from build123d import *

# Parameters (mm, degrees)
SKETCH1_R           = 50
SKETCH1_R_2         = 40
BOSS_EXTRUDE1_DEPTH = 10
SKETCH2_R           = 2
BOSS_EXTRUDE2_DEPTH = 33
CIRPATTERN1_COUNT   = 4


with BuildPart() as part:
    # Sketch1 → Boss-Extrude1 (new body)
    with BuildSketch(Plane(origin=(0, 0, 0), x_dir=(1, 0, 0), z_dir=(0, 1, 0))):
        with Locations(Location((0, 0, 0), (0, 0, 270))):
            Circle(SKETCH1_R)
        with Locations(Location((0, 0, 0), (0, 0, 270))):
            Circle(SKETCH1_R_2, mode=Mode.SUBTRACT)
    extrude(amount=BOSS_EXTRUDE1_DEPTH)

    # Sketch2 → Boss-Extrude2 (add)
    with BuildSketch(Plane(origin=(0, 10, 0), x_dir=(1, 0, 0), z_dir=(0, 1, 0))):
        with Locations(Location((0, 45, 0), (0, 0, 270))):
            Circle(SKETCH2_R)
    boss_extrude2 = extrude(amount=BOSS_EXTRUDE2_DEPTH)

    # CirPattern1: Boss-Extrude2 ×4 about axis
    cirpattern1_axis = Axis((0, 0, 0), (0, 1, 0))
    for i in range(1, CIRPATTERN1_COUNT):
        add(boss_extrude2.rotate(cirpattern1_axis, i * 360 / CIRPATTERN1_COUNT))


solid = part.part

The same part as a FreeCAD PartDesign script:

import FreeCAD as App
import Part
import Sketcher
from FreeCAD import Vector

doc = App.newDocument("Part")
body = doc.addObject("PartDesign::Body", "Body")

# Sketch on XZ plane
sketch1 = doc.addObject("Sketcher::SketchObject", "Sketch")
body.addObject(sketch1)
sketch1.AttachmentSupport = (doc.XZ_Plane, [""])
sketch1.MapMode = "FlatFace"
sketch1.addGeometry(Part.Circle(Vector(0, 0, 0), Vector(0, 0, 1), 50), False)
sketch1.addGeometry(Part.Circle(Vector(0, 0, 0), Vector(0, 0, 1), 40), False)
sketch1.addConstraint(Sketcher.Constraint("Coincident", 0, 3, -1, 1))
sketch1.addConstraint(Sketcher.Constraint("Coincident", 1, 3, -1, 1))
sketch1.addConstraint(Sketcher.Constraint("Diameter", 0, 100.0))
sketch1.addConstraint(Sketcher.Constraint("Diameter", 1, 80.0))
pad1 = doc.addObject("PartDesign::Pad", "Pad")
body.addObject(pad1)
pad1.Profile = sketch1
pad1.Length = 10
pad1.Reversed = True

# Sketch on XZ plane
sketch2 = doc.addObject("Sketcher::SketchObject", "Sketch001")
body.addObject(sketch2)
sketch2.AttachmentSupport = (doc.XZ_Plane, [""])
sketch2.MapMode = "FlatFace"
sketch2.AttachmentOffset = App.Placement(Vector(0, 0, -10), App.Rotation())
sketch2.addGeometry(Part.Circle(Vector(0, -45, 0), Vector(0, 0, 1), 2), False)
sketch2.addConstraint(Sketcher.Constraint("PointOnObject", 0, 3, -2))
sketch2.addConstraint(Sketcher.Constraint("Diameter", 0, 4.0))
sketch2.addConstraint(Sketcher.Constraint("DistanceY", 0, 3, -1, 1, 45.0))
pad2 = doc.addObject("PartDesign::Pad", "Pad001")
body.addObject(pad2)
pad2.Profile = sketch2
pad2.Length = 33
pad2.Reversed = True
doc.recompute()

polarpattern = doc.addObject("PartDesign::PolarPattern", "PolarPattern")
body.addObject(polarpattern)
polarpattern.Originals = [pad2]
polarpattern.Axis = (doc.Y_Axis, [""])
polarpattern.Angle = 360
polarpattern.Occurrences = 4
body.Tip = polarpattern

doc.recompute()
